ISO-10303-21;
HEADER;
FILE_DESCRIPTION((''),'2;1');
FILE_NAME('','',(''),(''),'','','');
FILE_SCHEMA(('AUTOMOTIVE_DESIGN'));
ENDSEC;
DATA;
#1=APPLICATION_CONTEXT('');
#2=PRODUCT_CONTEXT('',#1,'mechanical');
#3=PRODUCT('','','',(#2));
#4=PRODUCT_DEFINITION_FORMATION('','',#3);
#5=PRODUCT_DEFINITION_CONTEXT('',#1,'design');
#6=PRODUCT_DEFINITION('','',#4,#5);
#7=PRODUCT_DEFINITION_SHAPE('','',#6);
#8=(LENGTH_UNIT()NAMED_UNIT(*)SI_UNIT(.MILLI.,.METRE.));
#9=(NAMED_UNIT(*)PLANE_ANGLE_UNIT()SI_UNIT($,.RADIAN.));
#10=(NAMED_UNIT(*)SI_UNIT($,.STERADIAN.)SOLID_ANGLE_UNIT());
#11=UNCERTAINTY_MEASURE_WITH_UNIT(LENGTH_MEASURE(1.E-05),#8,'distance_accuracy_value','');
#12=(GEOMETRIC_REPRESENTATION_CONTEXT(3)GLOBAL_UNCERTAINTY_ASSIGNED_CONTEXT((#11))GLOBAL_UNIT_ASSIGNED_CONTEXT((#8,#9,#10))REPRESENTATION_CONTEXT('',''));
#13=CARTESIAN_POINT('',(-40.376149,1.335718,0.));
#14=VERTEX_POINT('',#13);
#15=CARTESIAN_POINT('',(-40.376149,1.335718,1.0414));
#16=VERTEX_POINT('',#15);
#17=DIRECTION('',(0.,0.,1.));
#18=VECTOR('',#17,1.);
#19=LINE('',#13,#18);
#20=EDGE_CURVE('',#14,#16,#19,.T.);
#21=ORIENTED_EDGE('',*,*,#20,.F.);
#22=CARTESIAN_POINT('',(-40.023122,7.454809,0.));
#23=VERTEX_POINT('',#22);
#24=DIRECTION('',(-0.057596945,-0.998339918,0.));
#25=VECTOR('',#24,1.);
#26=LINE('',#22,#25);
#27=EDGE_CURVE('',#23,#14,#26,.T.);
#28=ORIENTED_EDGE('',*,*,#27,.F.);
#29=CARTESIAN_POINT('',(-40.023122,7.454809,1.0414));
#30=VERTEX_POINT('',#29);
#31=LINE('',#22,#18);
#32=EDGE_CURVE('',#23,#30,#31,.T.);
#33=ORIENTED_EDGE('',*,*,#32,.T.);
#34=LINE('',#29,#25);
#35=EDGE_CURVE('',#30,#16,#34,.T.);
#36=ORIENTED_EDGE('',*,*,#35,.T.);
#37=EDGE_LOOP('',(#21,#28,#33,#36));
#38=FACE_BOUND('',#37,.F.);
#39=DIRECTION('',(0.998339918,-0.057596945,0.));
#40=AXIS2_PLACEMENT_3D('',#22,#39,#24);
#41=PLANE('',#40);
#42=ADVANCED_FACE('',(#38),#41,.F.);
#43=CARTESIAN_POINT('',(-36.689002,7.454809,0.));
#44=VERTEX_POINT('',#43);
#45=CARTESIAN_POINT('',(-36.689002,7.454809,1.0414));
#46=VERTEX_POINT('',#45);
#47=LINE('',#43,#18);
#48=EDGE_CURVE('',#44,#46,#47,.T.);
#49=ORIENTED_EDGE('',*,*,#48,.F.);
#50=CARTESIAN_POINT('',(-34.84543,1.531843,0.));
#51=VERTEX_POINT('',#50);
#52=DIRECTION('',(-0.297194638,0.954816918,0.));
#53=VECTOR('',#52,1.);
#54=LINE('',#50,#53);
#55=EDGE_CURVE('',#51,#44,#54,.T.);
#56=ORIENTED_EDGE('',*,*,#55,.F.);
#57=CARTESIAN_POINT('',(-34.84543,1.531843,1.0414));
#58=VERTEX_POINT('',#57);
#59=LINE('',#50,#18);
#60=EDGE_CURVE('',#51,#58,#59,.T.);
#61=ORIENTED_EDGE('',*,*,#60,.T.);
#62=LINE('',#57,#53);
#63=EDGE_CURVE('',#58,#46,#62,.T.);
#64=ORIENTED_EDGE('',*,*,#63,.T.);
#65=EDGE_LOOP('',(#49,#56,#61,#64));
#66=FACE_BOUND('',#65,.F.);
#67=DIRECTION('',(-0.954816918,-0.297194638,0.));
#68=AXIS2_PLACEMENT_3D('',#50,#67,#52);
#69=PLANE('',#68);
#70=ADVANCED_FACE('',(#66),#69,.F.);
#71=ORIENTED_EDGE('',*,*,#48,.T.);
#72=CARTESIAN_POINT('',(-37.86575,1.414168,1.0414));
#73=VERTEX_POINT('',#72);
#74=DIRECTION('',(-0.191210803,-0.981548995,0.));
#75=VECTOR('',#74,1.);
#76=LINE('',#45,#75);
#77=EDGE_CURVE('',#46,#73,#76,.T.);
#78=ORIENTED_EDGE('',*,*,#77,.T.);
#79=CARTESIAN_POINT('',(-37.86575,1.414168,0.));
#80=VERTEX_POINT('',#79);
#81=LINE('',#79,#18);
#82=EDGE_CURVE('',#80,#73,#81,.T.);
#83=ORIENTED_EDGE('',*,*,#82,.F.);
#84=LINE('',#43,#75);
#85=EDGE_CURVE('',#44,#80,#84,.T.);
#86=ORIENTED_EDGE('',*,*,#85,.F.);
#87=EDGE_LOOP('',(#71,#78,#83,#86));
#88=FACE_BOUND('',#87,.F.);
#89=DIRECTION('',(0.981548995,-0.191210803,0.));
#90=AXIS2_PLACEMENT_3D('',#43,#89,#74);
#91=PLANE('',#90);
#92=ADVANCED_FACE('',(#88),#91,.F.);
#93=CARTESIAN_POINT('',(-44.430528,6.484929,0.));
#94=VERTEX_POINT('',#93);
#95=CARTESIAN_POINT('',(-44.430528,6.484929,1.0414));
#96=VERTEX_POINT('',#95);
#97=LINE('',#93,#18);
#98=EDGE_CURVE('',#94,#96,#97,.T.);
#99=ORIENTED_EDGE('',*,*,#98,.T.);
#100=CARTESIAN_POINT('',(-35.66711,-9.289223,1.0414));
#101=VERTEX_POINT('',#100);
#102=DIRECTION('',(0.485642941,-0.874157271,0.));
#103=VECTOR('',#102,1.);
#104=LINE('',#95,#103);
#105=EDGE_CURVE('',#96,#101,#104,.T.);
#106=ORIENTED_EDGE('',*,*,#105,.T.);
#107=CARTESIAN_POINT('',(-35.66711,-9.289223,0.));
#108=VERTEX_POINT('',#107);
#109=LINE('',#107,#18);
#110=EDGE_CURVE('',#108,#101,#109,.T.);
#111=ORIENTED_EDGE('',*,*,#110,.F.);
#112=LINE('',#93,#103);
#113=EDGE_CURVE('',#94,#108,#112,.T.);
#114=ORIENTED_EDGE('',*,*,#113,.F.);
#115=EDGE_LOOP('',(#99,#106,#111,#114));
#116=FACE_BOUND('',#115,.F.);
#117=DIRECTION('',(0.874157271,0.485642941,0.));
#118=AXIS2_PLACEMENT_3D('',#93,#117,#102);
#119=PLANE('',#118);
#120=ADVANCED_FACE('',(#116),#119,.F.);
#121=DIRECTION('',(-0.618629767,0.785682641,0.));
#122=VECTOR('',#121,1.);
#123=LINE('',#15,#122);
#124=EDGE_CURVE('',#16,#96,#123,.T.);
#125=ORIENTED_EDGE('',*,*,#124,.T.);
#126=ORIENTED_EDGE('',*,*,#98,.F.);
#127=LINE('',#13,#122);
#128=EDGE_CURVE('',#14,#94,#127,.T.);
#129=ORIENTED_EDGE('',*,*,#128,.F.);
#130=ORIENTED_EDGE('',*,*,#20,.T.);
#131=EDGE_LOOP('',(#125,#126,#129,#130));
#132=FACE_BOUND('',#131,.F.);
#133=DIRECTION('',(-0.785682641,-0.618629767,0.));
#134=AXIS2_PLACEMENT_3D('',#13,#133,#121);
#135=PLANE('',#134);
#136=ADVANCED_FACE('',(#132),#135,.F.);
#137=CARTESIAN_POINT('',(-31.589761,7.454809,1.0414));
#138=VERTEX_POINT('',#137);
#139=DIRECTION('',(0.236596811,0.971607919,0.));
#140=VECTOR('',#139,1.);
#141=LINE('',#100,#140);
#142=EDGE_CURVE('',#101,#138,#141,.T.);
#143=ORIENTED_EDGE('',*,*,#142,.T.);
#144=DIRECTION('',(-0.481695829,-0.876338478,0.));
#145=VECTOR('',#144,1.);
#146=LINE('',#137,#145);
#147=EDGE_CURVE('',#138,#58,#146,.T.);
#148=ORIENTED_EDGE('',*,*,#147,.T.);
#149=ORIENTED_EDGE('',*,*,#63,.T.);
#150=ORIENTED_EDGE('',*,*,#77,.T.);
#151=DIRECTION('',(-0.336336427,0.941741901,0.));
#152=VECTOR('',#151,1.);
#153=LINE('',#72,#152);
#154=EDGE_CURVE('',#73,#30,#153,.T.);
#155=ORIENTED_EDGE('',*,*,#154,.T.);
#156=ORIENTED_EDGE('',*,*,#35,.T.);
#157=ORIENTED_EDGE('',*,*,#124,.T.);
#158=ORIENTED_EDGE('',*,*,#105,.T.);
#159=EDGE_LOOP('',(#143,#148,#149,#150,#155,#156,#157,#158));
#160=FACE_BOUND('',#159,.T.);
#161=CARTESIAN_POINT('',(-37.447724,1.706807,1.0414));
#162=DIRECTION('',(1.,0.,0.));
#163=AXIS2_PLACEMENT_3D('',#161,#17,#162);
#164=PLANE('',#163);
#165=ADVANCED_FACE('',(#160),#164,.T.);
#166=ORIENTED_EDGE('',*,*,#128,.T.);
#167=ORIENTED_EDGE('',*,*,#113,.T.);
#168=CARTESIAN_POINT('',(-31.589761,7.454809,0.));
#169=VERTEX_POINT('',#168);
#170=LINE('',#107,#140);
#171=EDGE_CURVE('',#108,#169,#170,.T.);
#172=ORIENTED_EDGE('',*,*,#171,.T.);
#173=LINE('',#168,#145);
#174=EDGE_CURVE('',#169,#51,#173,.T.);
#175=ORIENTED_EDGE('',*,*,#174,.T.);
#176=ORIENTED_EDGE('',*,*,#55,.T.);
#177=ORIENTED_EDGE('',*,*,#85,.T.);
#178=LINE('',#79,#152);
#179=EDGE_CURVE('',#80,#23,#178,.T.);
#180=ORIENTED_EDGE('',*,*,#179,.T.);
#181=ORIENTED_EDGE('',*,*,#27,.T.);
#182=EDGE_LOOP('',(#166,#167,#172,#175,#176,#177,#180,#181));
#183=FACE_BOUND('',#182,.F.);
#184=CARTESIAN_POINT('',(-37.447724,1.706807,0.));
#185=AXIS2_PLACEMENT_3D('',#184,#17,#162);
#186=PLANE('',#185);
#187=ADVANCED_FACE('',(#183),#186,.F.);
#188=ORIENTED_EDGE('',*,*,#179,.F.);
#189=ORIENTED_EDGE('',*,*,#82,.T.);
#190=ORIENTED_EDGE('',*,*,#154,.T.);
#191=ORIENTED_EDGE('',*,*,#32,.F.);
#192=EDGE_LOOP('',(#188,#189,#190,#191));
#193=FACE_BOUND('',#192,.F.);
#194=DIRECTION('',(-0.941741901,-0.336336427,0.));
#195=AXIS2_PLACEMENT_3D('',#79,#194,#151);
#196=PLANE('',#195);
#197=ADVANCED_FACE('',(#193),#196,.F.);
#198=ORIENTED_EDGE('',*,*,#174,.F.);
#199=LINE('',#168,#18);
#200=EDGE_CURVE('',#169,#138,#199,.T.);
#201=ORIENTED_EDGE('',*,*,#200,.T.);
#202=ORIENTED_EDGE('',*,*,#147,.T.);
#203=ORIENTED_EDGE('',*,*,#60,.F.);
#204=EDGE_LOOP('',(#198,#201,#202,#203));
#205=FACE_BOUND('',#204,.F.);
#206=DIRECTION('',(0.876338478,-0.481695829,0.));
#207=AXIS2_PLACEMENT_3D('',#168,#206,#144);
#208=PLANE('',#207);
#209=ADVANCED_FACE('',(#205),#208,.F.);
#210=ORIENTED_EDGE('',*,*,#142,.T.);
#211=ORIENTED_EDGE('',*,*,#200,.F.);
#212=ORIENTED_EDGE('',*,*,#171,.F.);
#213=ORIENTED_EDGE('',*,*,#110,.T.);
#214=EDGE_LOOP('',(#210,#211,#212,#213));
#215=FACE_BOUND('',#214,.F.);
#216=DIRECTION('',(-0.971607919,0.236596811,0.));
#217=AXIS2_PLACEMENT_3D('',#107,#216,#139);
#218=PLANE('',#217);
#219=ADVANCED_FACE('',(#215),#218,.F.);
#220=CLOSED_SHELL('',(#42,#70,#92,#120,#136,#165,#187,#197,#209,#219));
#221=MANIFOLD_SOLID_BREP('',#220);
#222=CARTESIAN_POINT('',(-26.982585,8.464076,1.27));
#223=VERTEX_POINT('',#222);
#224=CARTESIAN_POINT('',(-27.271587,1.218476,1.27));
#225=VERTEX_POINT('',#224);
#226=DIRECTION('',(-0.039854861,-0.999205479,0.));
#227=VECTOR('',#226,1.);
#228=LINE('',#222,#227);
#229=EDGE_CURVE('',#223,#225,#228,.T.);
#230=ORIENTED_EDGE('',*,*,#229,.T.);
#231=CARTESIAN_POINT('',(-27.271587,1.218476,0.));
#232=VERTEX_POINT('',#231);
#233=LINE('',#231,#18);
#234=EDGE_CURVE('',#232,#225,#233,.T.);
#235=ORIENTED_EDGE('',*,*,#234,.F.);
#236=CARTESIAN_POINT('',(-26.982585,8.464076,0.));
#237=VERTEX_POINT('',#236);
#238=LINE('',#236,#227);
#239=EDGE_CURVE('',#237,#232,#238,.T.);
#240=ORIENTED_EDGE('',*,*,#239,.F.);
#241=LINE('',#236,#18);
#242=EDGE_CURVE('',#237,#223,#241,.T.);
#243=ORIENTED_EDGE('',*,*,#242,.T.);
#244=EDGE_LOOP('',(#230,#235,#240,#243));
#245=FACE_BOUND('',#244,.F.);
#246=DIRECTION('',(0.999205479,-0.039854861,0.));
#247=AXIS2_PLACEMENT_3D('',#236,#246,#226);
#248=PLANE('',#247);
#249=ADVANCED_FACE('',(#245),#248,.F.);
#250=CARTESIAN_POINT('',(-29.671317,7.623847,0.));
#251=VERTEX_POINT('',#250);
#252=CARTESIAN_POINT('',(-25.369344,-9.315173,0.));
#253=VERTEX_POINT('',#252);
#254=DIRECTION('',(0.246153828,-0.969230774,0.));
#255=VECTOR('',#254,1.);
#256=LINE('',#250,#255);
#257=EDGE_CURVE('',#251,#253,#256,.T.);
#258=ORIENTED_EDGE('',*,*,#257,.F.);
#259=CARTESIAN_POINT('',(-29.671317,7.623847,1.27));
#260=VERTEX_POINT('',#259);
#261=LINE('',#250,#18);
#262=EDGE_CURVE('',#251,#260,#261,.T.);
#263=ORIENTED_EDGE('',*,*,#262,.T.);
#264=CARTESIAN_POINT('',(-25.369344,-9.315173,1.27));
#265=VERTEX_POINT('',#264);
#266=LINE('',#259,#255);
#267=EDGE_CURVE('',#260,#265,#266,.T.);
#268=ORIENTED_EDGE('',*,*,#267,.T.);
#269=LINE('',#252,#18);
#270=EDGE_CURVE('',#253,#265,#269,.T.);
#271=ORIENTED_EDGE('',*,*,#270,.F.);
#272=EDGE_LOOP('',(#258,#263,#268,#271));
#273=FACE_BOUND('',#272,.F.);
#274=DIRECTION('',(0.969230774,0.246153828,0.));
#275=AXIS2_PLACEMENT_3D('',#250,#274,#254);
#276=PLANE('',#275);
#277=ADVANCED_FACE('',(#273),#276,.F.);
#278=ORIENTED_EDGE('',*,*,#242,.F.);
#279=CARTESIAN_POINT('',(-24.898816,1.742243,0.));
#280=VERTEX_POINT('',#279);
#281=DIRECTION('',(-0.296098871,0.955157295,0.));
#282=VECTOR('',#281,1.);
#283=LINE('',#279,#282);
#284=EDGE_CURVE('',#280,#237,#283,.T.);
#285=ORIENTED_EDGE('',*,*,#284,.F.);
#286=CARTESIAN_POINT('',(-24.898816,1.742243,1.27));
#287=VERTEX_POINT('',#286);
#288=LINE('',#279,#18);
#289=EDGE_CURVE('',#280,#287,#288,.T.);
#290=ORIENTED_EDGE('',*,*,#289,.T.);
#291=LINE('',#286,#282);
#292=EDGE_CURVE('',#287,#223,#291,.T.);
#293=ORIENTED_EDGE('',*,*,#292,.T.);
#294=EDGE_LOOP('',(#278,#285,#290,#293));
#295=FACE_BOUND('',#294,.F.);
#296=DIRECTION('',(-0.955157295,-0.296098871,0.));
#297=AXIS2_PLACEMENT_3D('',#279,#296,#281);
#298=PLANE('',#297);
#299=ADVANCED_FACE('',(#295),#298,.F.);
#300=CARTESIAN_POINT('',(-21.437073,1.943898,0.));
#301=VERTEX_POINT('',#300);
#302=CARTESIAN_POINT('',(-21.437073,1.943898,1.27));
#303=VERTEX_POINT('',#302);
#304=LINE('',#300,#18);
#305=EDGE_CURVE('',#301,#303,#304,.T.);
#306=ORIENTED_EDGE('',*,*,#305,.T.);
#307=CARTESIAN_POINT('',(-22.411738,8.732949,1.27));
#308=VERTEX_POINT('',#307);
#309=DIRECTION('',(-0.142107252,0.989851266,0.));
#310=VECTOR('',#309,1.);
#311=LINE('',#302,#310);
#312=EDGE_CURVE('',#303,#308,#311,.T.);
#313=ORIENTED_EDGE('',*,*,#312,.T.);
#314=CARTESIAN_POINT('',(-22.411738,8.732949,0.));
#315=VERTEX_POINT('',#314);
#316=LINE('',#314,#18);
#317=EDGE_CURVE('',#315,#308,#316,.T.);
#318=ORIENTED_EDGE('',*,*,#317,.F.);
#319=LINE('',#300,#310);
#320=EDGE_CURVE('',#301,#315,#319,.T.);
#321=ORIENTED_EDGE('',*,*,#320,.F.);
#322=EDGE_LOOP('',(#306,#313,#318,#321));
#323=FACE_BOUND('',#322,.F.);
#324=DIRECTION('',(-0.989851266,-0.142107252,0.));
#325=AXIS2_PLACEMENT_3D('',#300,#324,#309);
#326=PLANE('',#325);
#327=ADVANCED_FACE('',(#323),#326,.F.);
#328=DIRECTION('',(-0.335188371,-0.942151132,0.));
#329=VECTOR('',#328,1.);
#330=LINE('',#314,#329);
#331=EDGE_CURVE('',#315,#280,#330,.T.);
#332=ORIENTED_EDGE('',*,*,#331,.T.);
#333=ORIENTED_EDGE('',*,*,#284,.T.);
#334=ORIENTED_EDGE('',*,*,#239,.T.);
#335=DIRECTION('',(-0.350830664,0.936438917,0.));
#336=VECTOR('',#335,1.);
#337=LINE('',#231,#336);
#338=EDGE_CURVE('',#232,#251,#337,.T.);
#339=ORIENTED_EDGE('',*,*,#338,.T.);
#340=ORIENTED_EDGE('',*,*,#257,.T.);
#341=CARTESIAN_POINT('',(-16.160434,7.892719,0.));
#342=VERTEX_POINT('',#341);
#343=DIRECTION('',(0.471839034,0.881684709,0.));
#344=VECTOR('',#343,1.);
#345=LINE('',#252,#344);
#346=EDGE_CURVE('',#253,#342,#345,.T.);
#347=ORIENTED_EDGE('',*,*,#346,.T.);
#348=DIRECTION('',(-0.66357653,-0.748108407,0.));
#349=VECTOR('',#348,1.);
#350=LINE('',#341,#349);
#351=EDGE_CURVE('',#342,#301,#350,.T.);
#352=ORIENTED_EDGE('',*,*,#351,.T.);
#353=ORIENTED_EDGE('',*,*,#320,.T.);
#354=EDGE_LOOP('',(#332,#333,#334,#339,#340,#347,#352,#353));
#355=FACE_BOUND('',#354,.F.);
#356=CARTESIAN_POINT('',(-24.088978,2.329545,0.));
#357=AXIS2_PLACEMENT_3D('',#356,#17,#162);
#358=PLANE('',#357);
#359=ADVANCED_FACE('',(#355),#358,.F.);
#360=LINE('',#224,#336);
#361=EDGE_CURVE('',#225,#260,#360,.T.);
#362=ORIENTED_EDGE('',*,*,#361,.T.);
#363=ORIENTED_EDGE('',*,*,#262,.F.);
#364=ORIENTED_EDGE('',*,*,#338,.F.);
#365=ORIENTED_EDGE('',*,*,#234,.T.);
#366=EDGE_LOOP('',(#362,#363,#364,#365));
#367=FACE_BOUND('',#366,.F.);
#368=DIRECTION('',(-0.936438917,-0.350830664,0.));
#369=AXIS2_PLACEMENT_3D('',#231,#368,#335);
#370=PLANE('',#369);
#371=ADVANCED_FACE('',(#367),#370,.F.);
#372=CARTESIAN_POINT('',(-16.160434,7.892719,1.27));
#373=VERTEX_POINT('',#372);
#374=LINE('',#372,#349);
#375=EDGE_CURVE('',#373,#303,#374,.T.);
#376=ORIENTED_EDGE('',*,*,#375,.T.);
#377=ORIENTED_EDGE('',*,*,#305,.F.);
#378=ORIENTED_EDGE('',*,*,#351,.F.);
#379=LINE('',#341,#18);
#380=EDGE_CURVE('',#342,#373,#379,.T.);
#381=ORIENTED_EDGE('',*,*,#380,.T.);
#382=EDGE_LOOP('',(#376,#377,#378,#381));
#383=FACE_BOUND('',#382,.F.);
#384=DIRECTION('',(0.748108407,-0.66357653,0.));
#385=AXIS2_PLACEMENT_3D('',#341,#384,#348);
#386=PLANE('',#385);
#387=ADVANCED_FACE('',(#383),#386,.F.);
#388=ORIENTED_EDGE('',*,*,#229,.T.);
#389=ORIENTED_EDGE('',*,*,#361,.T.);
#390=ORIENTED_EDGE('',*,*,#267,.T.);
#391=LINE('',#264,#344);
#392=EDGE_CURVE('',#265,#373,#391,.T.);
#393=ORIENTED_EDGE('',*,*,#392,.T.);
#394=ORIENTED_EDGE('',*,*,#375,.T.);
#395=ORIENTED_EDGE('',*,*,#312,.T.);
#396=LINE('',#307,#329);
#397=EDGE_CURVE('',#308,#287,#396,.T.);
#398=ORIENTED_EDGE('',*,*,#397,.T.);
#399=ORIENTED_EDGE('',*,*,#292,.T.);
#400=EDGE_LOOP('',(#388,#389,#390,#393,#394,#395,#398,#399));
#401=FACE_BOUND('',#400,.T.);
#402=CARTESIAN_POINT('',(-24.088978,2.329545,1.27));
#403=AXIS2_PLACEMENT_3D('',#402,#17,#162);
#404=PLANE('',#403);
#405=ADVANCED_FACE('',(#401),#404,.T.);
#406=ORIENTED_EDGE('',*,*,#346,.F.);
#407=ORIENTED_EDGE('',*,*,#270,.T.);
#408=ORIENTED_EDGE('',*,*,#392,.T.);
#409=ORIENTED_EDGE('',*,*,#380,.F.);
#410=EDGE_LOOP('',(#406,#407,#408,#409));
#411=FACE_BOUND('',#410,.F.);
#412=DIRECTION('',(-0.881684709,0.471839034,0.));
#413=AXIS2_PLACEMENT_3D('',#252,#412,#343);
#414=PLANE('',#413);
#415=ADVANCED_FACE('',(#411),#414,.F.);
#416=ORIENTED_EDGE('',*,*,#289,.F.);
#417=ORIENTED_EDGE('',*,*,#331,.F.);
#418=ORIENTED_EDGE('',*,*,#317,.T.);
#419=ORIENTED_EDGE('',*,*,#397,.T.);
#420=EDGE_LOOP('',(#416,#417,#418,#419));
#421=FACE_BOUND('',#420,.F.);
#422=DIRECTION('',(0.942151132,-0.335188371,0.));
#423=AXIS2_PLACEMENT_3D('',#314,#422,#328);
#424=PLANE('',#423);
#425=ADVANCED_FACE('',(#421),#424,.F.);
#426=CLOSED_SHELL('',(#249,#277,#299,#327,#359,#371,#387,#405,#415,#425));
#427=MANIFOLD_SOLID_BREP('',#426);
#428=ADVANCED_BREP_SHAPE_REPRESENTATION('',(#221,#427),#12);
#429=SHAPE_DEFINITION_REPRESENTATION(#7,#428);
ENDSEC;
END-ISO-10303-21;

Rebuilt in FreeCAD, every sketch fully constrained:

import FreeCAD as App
import Part
import Sketcher

V = App.Vector
Q = App.Units.Quantity

doc = App.newDocument("Part")
params = doc.addObject("Spreadsheet::Sheet", "Params")
for row, (alias, value) in enumerate([
    ("pad1_length", "0.041 in"),
    ("pad2_length", "0.05 in"),
], start=1):
    params.set(f"A{row}", alias)
    params.set(f"B{row}", "=" + value)
    params.setAlias(f"B{row}", alias)

body = doc.addObject("PartDesign::Body", "Body")

sketch1 = body.newObject("Sketcher::SketchObject", "Sketch")
sketch1.AttachmentSupport = (doc.getObject("XY_Plane"), [""])
sketch1.MapMode = "FlatFace"
sketch1.addGeometry(Part.LineSegment(V(-40, 1, 0), V(-44, 6, 0)), False)
sketch1.addGeometry(Part.LineSegment(V(-44, 6, 0), V(-36, -9, 0)), False)
sketch1.addGeometry(Part.LineSegment(V(-36, -9, 0), V(-32, 7, 0)), False)
sketch1.addGeometry(Part.LineSegment(V(-32, 7, 0), V(-35, 2, 0)), False)
sketch1.addGeometry(Part.LineSegment(V(-35, 2, 0), V(-37, 7, 0)), False)
sketch1.addGeometry(Part.LineSegment(V(-37, 7, 0), V(-38, 1, 0)), False)
sketch1.addGeometry(Part.LineSegment(V(-38, 1, 0), V(-40, 7, 0)), False)
sketch1.addGeometry(Part.LineSegment(V(-40, 7, 0), V(-40, 1, 0)), False)
sketch1.addConstraint(Sketcher.Constraint("Coincident", 0, 2, 1, 1))
sketch1.addConstraint(Sketcher.Constraint("Coincident", 1, 2, 2, 1))
sketch1.addConstraint(Sketcher.Constraint("Coincident", 2, 2, 3, 1))
sketch1.addConstraint(Sketcher.Constraint("Coincident", 3, 2, 4, 1))
sketch1.addConstraint(Sketcher.Constraint("Coincident", 4, 2, 5, 1))
sketch1.addConstraint(Sketcher.Constraint("Coincident", 5, 2, 6, 1))
sketch1.addConstraint(Sketcher.Constraint("Coincident", 6, 2, 7, 1))
sketch1.addConstraint(Sketcher.Constraint("Coincident", 7, 2, 0, 1))
sketch1.addConstraint(Sketcher.Constraint("Horizontal", 2, 2, 4, 2))
sketch1.addConstraint(Sketcher.Constraint("Horizontal", 4, 2, 6, 2))
sketch1.addConstraint(Sketcher.Constraint("DistanceX", 0, 2, 3, 2, 9.585098))
sketch1.addConstraint(Sketcher.Constraint("DistanceX", 7, 2, 5, 2, 2.510399))
sketch1.addConstraint(Sketcher.Constraint("Distance", 1, 18.044982))
sketch1.addConstraint(Sketcher.Constraint("Distance", 2, 17.233322))
sketch1.addConstraint(Sketcher.Constraint("DistanceX", 0, 2, -1, 1, 44.430528))
sketch1.addConstraint(Sketcher.Constraint("DistanceY", -1, 1, 0, 2, 6.484929))
sketch1.addConstraint(Sketcher.Constraint("DistanceX", 1, 2, -1, 1, 35.66711))
sketch1.addConstraint(Sketcher.Constraint("DistanceX", 2, 2, -1, 1, 31.589761))
sketch1.addConstraint(Sketcher.Constraint("DistanceX", 5, 2, -1, 1, 37.86575))
sketch1.addConstraint(Sketcher.Constraint("DistanceY", -1, 1, 5, 2, 1.414168))
sketch1.addConstraint(Sketcher.Constraint("DistanceX", 4, 2, 2, 2, 5.099241))
sketch1.addConstraint(Sketcher.Constraint("DistanceX", 6, 2, 4, 2, 3.33412))
sketch1.addConstraint(Sketcher.Constraint("DistanceY", 7, 2, 5, 2, 0.07845))
sketch1.addConstraint(Sketcher.Constraint("Distance", 3, 6.758765))
pad1 = body.newObject("PartDesign::Pad", "Pad")
pad1.Profile = sketch1
pad1.setExpression("Length", "Params.pad1_length")
body2 = doc.addObject("PartDesign::Body", "Body001")

sketch2 = body2.newObject("Sketcher::SketchObject", "Sketch001")
sketch2.AttachmentSupport = (doc.getObject("XY_Plane001"), [""])
sketch2.MapMode = "FlatFace"
sketch2.addGeometry(Part.LineSegment(V(-27.271587, 1.218476, 0), V(-29.671317, 7.623847, 0)), False)
sketch2.addGeometry(Part.LineSegment(V(-29.671317, 7.623847, 0), V(-25.369344, -9.315173, 0)), False)
sketch2.addGeometry(Part.LineSegment(V(-25.369344, -9.315173, 0), V(-16.160434, 7.892719, 0)), False)
sketch2.addGeometry(Part.LineSegment(V(-16.160434, 7.892719, 0), V(-21.437073, 1.943898, 0)), False)
sketch2.addGeometry(Part.LineSegment(V(-21.437073, 1.943898, 0), V(-22.411738, 8.732949, 0)), False)
sketch2.addGeometry(Part.LineSegment(V(-22.411738, 8.732949, 0), V(-24.898816, 1.742243, 0)), False)
sketch2.addGeometry(Part.LineSegment(V(-24.898816, 1.742243, 0), V(-26.982585, 8.464076, 0)), False)
sketch2.addGeometry(Part.LineSegment(V(-26.982585, 8.464076, 0), V(-27.271587, 1.218476, 0)), False)
sketch2.addConstraint(Sketcher.Constraint("Coincident", 0, 2, 1, 1))
sketch2.addConstraint(Sketcher.Constraint("Coincident", 1, 2, 2, 1))
sketch2.addConstraint(Sketcher.Constraint("Coincident", 2, 2, 3, 1))
sketch2.addConstraint(Sketcher.Constraint("Coincident", 3, 2, 4, 1))
sketch2.addConstraint(Sketcher.Constraint("Coincident", 4, 2, 5, 1))
sketch2.addConstraint(Sketcher.Constraint("Coincident", 5, 2, 6, 1))
sketch2.addConstraint(Sketcher.Constraint("Coincident", 6, 2, 7, 1))
sketch2.addConstraint(Sketcher.Constraint("Coincident", 7, 2, 0, 1))
sketch2.addConstraint(Sketcher.Constraint("DistanceY", 3, 2, 6, 2, Q("0.2566999 in")))
sketch2.addConstraint(Sketcher.Constraint("DistanceX", 0, 2, 5, 2, 4.772501))
sketch2.addConstraint(Sketcher.Constraint("DistanceY", 7, 2, 6, 2, 7.2456))
sketch2.addConstraint(Sketcher.Constraint("Distance", 2, 19.517058))
sketch2.addConstraint(Sketcher.Constraint("Distance", 5, 7.419941))
sketch2.addConstraint(Sketcher.Constraint("Distance", 6, 7.037409))
sketch2.addConstraint(Sketcher.Constraint("Distance", 7, 7.251361))
sketch2.addConstraint(Sketcher.Constraint("DistanceY", -1, 1, 2, 2, 7.892719))
sketch2.addConstraint(Sketcher.Constraint("DistanceY", -1, 1, 4, 2, 8.732949))
sketch2.addConstraint(Sketcher.Constraint("DistanceY", 1, 2, 0, 2, 16.93902))
sketch2.addConstraint(Sketcher.Constraint("DistanceX", 1, 2, 2, 2, 9.20891))
sketch2.addConstraint(Sketcher.Constraint("DistanceX", 3, 2, 2, 2, 5.276639))
sketch2.addConstraint(Sketcher.Constraint("DistanceY", 3, 2, 2, 2, 5.948821))
sketch2.addConstraint(Sketcher.Constraint("DistanceX", 0, 2, 4, 2, 7.259579))
sketch2.addConstraint(Sketcher.Constraint("DistanceX", 1, 2, 5, 2, 0.470528))
sketch2.addConstraint(Sketcher.Constraint("DistanceX", 0, 2, -1, 1, 29.671317))
pad2 = body2.newObject("PartDesign::Pad", "Pad001")
pad2.Profile = sketch2
pad2.setExpression("Length", "Params.pad2_length")

doc.recompute()
